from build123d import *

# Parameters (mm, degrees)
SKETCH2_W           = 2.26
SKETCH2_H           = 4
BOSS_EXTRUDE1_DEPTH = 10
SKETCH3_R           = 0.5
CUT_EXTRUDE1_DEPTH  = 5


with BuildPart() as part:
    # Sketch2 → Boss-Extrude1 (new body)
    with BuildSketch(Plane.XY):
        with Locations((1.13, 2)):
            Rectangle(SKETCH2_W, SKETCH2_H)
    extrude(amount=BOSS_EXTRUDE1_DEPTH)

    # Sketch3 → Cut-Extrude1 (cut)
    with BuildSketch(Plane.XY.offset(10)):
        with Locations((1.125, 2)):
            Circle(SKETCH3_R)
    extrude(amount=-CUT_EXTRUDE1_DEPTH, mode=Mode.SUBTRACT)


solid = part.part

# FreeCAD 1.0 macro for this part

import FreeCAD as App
import Part
import Sketcher

V = App.Vector
Q = App.Units.Quantity

doc = App.newDocument("Part")
body = doc.addObject("PartDesign::Body", "Body")

# Sketch on XY plane
sketch1 = doc.addObject("Sketcher::SketchObject", "Sketch")
body.addObject(sketch1)
sketch1.AttachmentSupport = (doc.XY_Plane, [""])
sketch1.MapMode = "FlatFace"
sketch1.addGeometry([
    Part.LineSegment(V(0, 4, 0), V(0, 0, 0)),
    Part.LineSegment(V(0, 0, 0), V(2.26, 0, 0)),
    Part.LineSegment(V(2.26, 0, 0), V(2.26, 4, 0)),
    Part.LineSegment(V(2.26, 4, 0), V(0, 4, 0)),
], False)
sketch1.addConstraint([
    Sketcher.Constraint("Coincident", 0, 2, 1, 1),
    Sketcher.Constraint("Coincident", 1, 2, 2, 1),
    Sketcher.Constraint("Coincident", 2, 2, 3, 1),
    Sketcher.Constraint("Coincident", 3, 2, 0, 1),
    Sketcher.Constraint("Vertical", 0),
    Sketcher.Constraint("Horizontal", 1),
    Sketcher.Constraint("Vertical", 2),
    Sketcher.Constraint("Horizontal", 3),
    Sketcher.Constraint("Coincident", 0, 2, -1, 1),
    Sketcher.Constraint("DistanceY", 0, 2, 0, 1, Q("4 mm")),
    Sketcher.Constraint("DistanceX", 1, 1, 1, 2, Q("2.26 mm")),
])
pad1 = doc.addObject("PartDesign::Pad", "Pad")
body.addObject(pad1)
pad1.Profile = sketch1
pad1.Length = 10

# Sketch on XY plane
sketch2 = doc.addObject("Sketcher::SketchObject", "Sketch001")
body.addObject(sketch2)
sketch2.AttachmentSupport = (doc.XY_Plane, [""])
sketch2.MapMode = "FlatFace"
sketch2.AttachmentOffset = App.Placement(V(0, 0, 10), App.Rotation())
sketch2.addGeometry(Part.Circle(V(1.125, 2, 0), V(0, 0, 1), 0.5), False)
sketch2.addConstraint([
    Sketcher.Constraint("Diameter", 0, Q("1 mm")),
    Sketcher.Constraint("DistanceY", -1, 1, 0, 3, Q("2 mm")),
    Sketcher.Constraint("DistanceX", -1, 1, 0, 3, Q("1.125 mm")),
])
pocket1 = doc.addObject("PartDesign::Pocket", "Pocket")
body.addObject(pocket1)
pocket1.Profile = sketch2
pocket1.Length = 5

doc.recompute()
